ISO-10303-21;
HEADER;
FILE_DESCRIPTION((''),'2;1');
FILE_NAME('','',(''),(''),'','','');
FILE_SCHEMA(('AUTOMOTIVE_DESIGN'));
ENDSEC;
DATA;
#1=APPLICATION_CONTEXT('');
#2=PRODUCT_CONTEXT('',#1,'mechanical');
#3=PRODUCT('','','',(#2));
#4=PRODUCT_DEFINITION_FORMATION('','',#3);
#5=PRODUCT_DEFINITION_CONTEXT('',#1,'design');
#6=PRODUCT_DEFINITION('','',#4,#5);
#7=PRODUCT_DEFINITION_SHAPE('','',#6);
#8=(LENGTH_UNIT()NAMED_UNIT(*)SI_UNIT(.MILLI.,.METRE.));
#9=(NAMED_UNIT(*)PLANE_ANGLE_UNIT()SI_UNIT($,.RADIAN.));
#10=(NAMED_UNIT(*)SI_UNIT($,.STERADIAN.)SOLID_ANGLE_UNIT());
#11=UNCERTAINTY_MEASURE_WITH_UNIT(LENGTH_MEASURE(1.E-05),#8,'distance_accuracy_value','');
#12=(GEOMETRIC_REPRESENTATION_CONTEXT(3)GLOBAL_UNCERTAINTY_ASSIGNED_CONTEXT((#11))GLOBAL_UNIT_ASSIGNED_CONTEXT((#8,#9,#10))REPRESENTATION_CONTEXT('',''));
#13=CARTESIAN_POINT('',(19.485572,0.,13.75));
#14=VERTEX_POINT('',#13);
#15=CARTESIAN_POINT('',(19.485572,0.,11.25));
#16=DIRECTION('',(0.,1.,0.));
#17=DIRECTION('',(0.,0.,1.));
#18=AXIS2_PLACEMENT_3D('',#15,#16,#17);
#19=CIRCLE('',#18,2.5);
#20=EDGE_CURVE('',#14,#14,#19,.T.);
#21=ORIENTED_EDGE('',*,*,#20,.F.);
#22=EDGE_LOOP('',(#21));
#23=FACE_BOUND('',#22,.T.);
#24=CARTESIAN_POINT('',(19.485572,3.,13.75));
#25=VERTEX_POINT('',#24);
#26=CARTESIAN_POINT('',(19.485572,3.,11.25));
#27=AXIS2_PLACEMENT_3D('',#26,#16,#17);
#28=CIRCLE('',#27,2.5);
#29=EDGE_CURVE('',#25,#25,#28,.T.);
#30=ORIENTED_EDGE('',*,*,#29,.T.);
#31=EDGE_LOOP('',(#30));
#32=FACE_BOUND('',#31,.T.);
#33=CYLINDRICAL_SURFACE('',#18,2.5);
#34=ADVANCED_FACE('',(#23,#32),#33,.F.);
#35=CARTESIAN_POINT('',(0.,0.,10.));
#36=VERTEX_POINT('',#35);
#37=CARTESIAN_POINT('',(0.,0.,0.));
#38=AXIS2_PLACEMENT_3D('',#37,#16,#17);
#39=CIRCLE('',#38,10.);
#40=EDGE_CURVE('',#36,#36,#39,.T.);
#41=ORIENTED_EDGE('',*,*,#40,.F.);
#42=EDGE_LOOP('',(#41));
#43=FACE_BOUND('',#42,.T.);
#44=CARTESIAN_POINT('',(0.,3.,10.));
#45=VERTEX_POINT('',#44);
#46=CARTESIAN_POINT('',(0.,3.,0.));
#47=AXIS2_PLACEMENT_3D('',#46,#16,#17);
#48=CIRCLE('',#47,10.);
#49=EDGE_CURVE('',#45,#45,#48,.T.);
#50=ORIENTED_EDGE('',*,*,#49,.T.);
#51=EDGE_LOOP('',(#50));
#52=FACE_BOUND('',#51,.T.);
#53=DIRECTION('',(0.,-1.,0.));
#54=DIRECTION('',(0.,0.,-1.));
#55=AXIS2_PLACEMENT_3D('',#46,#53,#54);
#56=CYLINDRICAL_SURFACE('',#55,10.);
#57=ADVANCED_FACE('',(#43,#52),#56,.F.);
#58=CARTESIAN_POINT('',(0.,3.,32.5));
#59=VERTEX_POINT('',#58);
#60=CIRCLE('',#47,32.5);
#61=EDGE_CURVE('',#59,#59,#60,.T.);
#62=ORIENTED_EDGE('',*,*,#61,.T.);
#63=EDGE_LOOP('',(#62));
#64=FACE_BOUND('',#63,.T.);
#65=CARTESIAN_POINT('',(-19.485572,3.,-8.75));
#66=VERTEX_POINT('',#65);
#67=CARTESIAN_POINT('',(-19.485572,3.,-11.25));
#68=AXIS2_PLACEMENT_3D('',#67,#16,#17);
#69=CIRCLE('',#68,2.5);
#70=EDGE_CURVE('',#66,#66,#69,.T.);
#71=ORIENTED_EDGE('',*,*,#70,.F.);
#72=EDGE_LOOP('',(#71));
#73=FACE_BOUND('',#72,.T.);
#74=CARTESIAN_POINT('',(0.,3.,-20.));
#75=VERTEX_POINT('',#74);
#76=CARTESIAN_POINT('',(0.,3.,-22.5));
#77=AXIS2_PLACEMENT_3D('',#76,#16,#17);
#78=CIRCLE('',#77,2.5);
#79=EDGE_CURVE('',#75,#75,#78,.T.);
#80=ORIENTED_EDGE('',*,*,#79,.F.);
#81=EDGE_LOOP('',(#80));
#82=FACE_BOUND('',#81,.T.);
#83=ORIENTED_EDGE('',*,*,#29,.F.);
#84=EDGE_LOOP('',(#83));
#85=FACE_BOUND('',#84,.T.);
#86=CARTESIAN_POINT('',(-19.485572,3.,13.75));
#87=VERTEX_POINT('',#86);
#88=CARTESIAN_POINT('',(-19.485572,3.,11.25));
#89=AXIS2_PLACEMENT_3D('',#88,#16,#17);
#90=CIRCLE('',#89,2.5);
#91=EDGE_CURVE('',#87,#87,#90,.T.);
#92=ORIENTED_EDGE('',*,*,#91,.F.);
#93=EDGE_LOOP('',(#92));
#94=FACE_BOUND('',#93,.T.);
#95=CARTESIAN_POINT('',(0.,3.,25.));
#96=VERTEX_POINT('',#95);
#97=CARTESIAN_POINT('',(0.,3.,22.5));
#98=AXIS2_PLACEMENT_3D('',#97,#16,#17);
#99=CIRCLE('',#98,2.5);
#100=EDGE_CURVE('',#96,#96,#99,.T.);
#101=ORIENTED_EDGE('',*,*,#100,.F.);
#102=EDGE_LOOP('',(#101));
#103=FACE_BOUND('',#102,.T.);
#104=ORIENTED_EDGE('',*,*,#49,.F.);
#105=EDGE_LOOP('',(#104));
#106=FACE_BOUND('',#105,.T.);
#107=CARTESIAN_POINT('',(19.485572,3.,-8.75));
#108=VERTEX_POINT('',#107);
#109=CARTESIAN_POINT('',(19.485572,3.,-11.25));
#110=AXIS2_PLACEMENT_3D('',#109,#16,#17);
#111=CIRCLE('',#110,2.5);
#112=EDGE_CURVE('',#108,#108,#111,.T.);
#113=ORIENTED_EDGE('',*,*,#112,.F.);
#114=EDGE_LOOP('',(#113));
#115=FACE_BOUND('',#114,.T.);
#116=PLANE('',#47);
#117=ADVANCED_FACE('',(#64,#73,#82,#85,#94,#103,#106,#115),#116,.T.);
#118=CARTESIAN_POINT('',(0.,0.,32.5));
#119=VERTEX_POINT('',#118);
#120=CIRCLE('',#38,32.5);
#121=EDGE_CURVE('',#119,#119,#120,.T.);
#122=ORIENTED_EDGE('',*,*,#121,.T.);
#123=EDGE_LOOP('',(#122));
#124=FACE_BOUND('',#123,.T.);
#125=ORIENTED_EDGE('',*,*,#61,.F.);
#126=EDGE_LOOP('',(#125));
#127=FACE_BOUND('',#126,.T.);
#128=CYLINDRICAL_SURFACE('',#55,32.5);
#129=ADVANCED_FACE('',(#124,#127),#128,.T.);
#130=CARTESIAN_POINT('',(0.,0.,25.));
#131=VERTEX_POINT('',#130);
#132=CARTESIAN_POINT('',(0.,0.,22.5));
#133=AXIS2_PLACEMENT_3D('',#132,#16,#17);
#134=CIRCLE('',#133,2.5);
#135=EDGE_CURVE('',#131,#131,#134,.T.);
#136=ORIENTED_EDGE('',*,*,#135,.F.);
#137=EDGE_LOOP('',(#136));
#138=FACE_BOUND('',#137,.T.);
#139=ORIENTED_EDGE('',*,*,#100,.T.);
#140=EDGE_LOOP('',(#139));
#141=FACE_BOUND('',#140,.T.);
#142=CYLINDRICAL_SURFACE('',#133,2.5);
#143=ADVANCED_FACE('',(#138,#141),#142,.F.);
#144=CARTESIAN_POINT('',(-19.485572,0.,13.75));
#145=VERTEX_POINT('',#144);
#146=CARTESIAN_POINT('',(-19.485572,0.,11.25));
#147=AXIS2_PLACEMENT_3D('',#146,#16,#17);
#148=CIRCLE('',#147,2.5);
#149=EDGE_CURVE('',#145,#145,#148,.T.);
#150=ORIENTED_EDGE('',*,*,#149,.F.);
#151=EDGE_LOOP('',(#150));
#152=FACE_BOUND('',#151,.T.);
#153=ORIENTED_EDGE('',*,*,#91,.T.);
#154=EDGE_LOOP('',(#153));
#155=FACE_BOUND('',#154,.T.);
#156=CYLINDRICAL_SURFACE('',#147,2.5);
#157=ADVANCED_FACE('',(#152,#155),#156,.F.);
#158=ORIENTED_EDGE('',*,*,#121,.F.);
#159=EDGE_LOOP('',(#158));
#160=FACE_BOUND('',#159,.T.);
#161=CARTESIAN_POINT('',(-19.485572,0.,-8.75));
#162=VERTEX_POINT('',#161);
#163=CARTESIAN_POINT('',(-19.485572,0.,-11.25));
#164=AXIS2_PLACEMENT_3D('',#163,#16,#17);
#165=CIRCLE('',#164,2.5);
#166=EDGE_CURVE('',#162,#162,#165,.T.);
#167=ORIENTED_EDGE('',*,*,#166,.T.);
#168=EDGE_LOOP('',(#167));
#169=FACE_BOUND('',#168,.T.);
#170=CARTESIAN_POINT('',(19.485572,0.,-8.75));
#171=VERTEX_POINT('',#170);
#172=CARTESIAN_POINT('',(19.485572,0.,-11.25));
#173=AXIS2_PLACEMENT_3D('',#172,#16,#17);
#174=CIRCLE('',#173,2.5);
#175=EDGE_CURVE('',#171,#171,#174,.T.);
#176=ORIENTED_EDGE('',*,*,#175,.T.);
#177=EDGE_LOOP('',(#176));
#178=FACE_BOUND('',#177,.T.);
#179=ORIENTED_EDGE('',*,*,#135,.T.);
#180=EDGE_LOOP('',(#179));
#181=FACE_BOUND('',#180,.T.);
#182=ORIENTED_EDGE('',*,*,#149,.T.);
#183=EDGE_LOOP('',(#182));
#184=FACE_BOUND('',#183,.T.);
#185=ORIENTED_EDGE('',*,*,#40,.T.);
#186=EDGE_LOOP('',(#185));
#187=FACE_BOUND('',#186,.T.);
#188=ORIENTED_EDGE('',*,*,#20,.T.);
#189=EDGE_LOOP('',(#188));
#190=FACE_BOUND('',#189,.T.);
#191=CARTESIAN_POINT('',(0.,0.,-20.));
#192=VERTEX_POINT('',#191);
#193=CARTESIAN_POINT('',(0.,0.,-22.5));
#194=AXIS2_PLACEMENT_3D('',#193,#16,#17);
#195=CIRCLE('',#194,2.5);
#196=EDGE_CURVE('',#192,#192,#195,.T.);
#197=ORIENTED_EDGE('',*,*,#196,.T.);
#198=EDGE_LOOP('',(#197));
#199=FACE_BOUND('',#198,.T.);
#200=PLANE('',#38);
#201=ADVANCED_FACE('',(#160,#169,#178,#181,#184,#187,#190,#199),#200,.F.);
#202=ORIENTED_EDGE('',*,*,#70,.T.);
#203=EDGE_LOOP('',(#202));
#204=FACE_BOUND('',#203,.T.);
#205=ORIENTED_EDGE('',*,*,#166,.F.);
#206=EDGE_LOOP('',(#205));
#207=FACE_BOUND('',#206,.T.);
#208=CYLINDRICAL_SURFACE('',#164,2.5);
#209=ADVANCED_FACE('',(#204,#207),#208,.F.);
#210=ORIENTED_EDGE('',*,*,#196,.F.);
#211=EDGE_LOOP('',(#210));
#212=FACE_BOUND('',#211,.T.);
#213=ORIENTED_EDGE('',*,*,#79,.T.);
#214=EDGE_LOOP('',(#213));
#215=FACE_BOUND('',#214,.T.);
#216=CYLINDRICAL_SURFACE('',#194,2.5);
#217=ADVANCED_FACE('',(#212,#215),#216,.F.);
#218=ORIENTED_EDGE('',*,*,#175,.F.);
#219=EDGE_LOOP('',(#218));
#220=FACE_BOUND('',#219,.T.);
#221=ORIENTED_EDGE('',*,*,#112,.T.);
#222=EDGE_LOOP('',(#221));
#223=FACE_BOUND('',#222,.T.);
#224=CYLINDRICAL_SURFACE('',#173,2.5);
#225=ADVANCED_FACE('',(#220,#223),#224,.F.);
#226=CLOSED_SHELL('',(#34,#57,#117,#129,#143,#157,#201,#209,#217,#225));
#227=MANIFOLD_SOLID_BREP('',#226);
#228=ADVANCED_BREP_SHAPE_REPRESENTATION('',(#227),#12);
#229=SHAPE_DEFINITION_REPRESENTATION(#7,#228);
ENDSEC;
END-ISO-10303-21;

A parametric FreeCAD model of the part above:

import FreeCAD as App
import Part
import Sketcher

doc = App.newDocument("Part")
body = doc.addObject("PartDesign::Body", "Body")

# Sketch on XZ plane
sketch1 = doc.addObject("Sketcher::SketchObject", "Sketch")
body.addObject(sketch1)
sketch1.AttachmentSupport = (doc.XZ_Plane, [""])
sketch1.MapMode = "FlatFace"
sketch1.addGeometry([
    Part.Circle(App.Vector(0, 0, 0), App.Vector(0, 0, 1), 32.5),
    Part.Circle(App.Vector(0, 0, 0), App.Vector(0, 0, 1), 10),
], False)
sketch1.addConstraint([
    Sketcher.Constraint("Coincident", 0, 3, -1, 1),
    Sketcher.Constraint("Coincident", 1, 3, -1, 1),
    Sketcher.Constraint("Diameter", 0, 65.0),
    Sketcher.Constraint("Diameter", 1, 20.0),
])
pad1 = doc.addObject("PartDesign::Pad", "Pad")
body.addObject(pad1)
pad1.Profile = sketch1
pad1.Length = 3
pad1.Reversed = True

# Sketch on XZ plane
sketch2 = doc.addObject("Sketcher::SketchObject", "Sketch001")
body.addObject(sketch2)
sketch2.AttachmentSupport = (doc.XZ_Plane, [""])
sketch2.MapMode = "FlatFace"
sketch2.AttachmentOffset = App.Placement(App.Vector(0, 0, -3), App.Rotation())
sketch2.addGeometry([
    Part.Circle(App.Vector(0, -22.5, 0), App.Vector(0, 0, 1), 2.5),  # 0
    Part.Circle(App.Vector(19.485572, -11.25, 0), App.Vector(0, 0, 1), 2.5),  # 1
    Part.Circle(App.Vector(19.485572, 11.25, 0), App.Vector(0, 0, 1), 2.5),  # 2
    Part.Circle(App.Vector(0, 22.5, 0), App.Vector(0, 0, 1), 2.5),  # 3
    Part.Circle(App.Vector(-19.485572, 11.25, 0), App.Vector(0, 0, 1), 2.5),  # 4
    Part.Circle(App.Vector(-19.485572, -11.25, 0), App.Vector(0, 0, 1), 2.5),  # 5
], False)
sketch2.addConstraint([
    Sketcher.Constraint("Equal", 0, 1),
    Sketcher.Constraint("Equal", 1, 2),
    Sketcher.Constraint("Equal", 2, 3),
    Sketcher.Constraint("Equal", 3, 4),
    Sketcher.Constraint("Equal", 4, 5),
    Sketcher.Constraint("Symmetric", 0, 3, 3, 3, -1, 1),
    Sketcher.Constraint("Symmetric", 1, 3, 4, 3, -1, 1),
    Sketcher.Constraint("Symmetric", 2, 3, 5, 3, -1, 1),
    Sketcher.Constraint("Symmetric", 2, 3, 4, 3, -2),
    Sketcher.Constraint("PointOnObject", 0, 3, -2),
    Sketcher.Constraint("Diameter", 0, 5.0),
    Sketcher.Constraint("DistanceY", 0, 3, 3, 3, 45.0),
    Sketcher.Constraint("DistanceY", 1, 3, 2, 3, 22.5),
    Sketcher.Constraint("DistanceX", -1, 1, 1, 3, 19.485572),
])
pocket1 = doc.addObject("PartDesign::Pocket", "Pocket")
body.addObject(pocket1)
pocket1.Profile = sketch2
pocket1.Length = 3
pocket1.Reversed = True

doc.recompute()
